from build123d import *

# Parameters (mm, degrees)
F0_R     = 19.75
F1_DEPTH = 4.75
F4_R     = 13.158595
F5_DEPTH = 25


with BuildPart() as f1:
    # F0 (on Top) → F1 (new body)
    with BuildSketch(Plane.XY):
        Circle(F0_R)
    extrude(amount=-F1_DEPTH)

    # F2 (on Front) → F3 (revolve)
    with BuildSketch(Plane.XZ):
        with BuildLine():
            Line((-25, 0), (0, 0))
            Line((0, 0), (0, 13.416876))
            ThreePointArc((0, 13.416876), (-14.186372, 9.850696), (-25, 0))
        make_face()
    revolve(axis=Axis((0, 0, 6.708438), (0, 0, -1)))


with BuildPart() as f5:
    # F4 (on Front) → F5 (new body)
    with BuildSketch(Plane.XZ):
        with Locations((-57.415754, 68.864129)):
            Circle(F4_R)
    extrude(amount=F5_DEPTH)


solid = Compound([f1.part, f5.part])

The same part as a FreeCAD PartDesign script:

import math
import FreeCAD as App
import Part
import Sketcher
from FreeCAD import Vector
Q = App.Units.Quantity

doc = App.newDocument("Part")
body = doc.addObject("PartDesign::Body", "Body")

# Sketch on XY plane
sketch1 = doc.addObject("Sketcher::SketchObject", "Sketch")
body.addObject(sketch1)
sketch1.AttachmentSupport = (doc.XY_Plane, [""])
sketch1.MapMode = "FlatFace"
sketch1.addGeometry(Part.Circle(Vector(0, 0, 0), Vector(0, 0, 1), 19.75), False)
sketch1.addConstraint([
    Sketcher.Constraint("Coincident", 0, 3, -1, 1),
    Sketcher.Constraint("Diameter", 0, Q("39.5 mm")),
])
pad1 = doc.addObject("PartDesign::Pad", "Pad")
body.addObject(pad1)
pad1.Profile = sketch1
pad1.Length = 4.75
pad1.Reversed = True

# Sketch on XZ plane
sketch2 = doc.addObject("Sketcher::SketchObject", "Sketch001")
body.addObject(sketch2)
sketch2.AttachmentSupport = (doc.XZ_Plane, [""])
sketch2.MapMode = "FlatFace"
sketch2.addGeometry([
    Part.LineSegment(Vector(-25, 0, 0), Vector(0, 0, 0)),
    Part.LineSegment(Vector(0, 0, 0), Vector(0, 13.416876, 0)),
    Part.ArcOfCircle(Part.Circle(Vector(0.000001, -16.583125, 0), Vector(0, 0, 1), 30.000001), math.radians(90.000001), math.radians(146.442689)),
], False)
sketch2.addConstraint([
    Sketcher.Constraint("Coincident", 0, 2, 1, 1),
    Sketcher.Constraint("Coincident", 1, 2, 2, 1),
    Sketcher.Constraint("Coincident", 2, 2, 0, 1),
    Sketcher.Constraint("Horizontal", 0),
    Sketcher.Constraint("Vertical", 1),
    Sketcher.Constraint("Coincident", 0, 2, -1, 1),
    Sketcher.Constraint("PointOnObject", 2, 3, -2),
    Sketcher.Constraint("Radius", 2, Q("30.000001 mm")),
    Sketcher.Constraint("DistanceX", 0, 1, 0, 2, Q("25 mm")),
])
revolution = doc.addObject("PartDesign::Revolution", "Revolution")
body.addObject(revolution)
revolution.Profile = sketch2
revolution.ReferenceAxis = (sketch2, ["V_Axis"])
revolution.Angle = 360
body2 = doc.addObject("PartDesign::Body", "Body001")

# Sketch on XZ plane
sketch3 = doc.addObject("Sketcher::SketchObject", "Sketch002")
body2.addObject(sketch3)
sketch3.AttachmentSupport = (doc.getObject("XZ_Plane001"), [""])
sketch3.MapMode = "FlatFace"
sketch3.addGeometry(Part.Circle(Vector(-57.415754, 68.864129, 0), Vector(0, 0, 1), 13.158595), False)
sketch3.addConstraint([
    Sketcher.Constraint("Diameter", 0, Q("26.31719 mm")),
    Sketcher.Constraint("DistanceY", -1, 1, 0, 3, Q("68.864129 mm")),
    Sketcher.Constraint("DistanceX", 0, 3, -1, 1, Q("57.415754 mm")),
])
pad2 = doc.addObject("PartDesign::Pad", "Pad001")
body2.addObject(pad2)
pad2.Profile = sketch3
pad2.Length = 25

doc.recompute()
